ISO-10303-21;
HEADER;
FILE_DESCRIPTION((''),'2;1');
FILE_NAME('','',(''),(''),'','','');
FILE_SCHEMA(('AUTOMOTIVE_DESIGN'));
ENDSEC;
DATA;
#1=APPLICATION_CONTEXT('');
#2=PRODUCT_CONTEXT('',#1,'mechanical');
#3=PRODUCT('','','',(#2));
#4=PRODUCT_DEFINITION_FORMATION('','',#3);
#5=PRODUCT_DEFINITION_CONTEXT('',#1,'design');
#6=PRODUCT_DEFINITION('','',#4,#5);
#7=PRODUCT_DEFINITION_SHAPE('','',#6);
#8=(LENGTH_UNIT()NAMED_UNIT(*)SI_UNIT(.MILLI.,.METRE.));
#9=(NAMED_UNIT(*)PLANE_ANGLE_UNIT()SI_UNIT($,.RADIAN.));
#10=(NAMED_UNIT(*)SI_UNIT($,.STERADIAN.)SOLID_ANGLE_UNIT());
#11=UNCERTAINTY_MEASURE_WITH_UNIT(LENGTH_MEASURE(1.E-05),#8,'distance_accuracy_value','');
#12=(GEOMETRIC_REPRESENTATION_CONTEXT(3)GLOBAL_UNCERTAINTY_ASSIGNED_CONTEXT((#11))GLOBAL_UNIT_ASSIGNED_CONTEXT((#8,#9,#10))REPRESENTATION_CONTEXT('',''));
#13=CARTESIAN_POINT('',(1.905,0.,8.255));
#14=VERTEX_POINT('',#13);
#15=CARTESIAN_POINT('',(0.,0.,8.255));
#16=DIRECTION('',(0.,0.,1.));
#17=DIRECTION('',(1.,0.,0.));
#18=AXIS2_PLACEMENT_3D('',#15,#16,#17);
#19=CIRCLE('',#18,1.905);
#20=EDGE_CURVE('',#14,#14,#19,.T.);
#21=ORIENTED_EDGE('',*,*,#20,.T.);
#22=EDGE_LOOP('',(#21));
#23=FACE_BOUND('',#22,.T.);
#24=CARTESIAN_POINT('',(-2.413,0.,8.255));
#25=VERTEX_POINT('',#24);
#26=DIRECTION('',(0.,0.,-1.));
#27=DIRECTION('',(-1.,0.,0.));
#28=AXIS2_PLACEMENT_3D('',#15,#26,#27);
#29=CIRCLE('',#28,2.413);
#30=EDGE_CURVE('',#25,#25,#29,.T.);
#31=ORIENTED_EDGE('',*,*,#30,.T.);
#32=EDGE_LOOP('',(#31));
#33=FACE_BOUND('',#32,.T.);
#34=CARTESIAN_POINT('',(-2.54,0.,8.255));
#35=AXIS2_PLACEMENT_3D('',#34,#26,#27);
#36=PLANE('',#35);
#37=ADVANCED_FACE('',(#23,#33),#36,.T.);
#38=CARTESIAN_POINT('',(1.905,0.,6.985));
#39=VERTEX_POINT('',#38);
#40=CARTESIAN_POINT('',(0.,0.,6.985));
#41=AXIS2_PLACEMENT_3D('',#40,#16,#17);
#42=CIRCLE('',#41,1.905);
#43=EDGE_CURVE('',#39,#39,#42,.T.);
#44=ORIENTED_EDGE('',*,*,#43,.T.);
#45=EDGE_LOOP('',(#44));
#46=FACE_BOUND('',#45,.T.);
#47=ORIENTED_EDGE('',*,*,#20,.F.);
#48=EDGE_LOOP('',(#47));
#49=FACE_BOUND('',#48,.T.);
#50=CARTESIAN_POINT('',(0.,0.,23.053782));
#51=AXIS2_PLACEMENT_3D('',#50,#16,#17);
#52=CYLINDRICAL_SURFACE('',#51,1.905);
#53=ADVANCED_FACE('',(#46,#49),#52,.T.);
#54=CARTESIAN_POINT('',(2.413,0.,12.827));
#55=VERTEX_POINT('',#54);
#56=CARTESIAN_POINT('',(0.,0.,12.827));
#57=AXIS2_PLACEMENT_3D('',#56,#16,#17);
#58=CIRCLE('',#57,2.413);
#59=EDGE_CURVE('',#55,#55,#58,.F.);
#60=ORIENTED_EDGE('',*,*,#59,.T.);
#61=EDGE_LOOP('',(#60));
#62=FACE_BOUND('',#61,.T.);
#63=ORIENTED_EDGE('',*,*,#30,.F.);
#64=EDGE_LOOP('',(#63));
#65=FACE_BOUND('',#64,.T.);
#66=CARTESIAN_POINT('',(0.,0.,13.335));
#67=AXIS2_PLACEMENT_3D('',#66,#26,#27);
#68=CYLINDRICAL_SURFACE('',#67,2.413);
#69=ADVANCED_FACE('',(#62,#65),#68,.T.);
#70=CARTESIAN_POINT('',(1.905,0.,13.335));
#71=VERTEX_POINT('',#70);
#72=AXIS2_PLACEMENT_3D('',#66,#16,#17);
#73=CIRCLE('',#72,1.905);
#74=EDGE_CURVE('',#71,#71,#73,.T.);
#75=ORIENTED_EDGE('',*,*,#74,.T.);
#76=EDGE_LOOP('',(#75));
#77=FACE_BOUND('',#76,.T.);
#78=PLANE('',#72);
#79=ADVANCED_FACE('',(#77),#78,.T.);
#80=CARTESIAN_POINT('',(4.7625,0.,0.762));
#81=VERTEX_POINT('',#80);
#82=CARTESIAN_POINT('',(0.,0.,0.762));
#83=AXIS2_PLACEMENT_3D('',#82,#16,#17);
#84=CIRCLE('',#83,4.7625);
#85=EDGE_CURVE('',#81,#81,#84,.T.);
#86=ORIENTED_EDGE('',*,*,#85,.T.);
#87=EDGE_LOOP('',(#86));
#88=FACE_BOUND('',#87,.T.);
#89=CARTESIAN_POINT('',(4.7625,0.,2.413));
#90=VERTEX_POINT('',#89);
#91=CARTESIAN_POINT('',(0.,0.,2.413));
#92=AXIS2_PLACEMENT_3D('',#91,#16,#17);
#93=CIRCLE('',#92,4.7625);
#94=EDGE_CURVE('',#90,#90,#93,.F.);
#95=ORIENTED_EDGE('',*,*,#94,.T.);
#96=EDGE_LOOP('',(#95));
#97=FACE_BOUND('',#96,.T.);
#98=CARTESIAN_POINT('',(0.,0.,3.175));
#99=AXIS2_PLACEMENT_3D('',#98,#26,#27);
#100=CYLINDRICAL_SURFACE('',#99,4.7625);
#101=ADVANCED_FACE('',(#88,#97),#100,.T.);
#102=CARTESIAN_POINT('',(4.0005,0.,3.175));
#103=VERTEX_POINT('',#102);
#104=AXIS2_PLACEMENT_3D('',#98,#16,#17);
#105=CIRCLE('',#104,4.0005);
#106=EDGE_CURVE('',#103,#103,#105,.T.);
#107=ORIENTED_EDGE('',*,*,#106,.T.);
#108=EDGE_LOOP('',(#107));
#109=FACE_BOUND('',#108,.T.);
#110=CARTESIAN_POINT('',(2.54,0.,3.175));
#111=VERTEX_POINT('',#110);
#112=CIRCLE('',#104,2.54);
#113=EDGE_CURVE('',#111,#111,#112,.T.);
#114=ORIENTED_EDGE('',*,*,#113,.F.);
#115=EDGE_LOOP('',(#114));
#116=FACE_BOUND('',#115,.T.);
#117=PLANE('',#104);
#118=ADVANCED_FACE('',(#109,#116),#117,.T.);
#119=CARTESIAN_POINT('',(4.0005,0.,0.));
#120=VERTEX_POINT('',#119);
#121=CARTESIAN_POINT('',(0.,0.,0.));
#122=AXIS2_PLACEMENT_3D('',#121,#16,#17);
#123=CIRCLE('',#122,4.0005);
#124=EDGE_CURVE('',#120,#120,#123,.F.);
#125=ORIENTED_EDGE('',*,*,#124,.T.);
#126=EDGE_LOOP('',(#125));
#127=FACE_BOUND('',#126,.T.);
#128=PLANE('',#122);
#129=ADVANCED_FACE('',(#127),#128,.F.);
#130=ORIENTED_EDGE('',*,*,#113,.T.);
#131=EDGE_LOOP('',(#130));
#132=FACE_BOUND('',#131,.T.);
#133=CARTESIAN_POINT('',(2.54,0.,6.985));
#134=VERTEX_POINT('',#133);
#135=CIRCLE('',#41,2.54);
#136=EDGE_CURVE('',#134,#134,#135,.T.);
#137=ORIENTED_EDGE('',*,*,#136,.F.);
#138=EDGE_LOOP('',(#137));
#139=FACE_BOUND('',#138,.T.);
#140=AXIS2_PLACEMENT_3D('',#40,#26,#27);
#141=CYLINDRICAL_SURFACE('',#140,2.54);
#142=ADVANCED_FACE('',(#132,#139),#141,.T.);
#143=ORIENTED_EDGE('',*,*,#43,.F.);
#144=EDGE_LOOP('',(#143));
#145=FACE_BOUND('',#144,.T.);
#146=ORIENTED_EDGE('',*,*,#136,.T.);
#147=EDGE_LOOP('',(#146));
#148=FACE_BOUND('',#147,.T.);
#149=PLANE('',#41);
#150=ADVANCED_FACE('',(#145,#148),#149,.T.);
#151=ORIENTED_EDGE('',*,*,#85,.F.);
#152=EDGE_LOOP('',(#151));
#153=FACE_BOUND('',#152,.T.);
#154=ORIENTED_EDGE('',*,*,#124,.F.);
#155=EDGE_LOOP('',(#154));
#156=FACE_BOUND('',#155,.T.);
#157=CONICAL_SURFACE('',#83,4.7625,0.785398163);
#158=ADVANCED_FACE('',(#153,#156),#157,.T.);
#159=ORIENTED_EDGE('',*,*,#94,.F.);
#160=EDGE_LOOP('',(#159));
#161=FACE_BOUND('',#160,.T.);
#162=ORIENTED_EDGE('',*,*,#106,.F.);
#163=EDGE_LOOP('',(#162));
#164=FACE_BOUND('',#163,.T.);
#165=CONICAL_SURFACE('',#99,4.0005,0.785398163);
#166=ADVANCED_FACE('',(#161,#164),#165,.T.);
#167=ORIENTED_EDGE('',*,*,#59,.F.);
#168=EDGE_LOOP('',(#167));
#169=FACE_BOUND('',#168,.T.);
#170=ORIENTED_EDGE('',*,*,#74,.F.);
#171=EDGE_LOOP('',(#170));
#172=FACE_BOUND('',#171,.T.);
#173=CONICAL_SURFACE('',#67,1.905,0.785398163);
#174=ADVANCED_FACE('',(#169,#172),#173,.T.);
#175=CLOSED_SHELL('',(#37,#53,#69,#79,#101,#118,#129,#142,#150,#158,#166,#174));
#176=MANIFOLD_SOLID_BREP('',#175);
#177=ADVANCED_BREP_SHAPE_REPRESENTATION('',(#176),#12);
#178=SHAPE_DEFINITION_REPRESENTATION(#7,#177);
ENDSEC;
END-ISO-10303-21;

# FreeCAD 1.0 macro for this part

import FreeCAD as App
import Part
import Sketcher

V = App.Vector
Q = App.Units.Quantity


def edges_at(feature, points):
    """Names of the edges that pass closest to the given points."""
    edges = feature.Shape.Edges
    near = lambda p: min(range(len(edges)), key=lambda i: edges[i].distToShape(Part.Vertex(*p))[0])
    return sorted({f"Edge{near(p) + 1}" for p in points})


def add_polygon(sketch, points):
    """Adds a closed chain of lines whose ends are joined by coincident constraints."""
    first, n = sketch.GeometryCount, len(points)
    for a, b in zip(points, points[1:] + points[:1]):
        sketch.addGeometry(Part.LineSegment(App.Vector(*a, 0), App.Vector(*b, 0)), False)
    for i in range(n):
        sketch.addConstraint(Sketcher.Constraint("Coincident", first + i, 2, first + (i + 1) % n, 1))

doc = App.newDocument("Part")
body = doc.addObject("PartDesign::Body", "Body")

# Sketch on XY plane
sketch1 = doc.addObject("Sketcher::SketchObject", "Sketch")
body.addObject(sketch1)
sketch1.AttachmentSupport = (doc.XY_Plane, [""])
sketch1.MapMode = "FlatFace"
sketch1.addGeometry(Part.Circle(V(0, 0, 0), V(0, 0, 1), 4.7625), False)
sketch1.addConstraint([
    Sketcher.Constraint("Coincident", 0, 3, -1, 1),
    Sketcher.Constraint("Diameter", 0, Q("0.375 in")),
])
pad1 = doc.addObject("PartDesign::Pad", "Pad")
body.addObject(pad1)
pad1.Profile = sketch1
pad1.Length = Q("0.125 in")

# Sketch on XY plane
sketch2 = doc.addObject("Sketcher::SketchObject", "Sketch001")
body.addObject(sketch2)
sketch2.AttachmentSupport = (doc.XY_Plane, [""])
sketch2.MapMode = "FlatFace"
sketch2.AttachmentOffset = App.Placement(V(0, 0, 0.125 * 25.4), App.Rotation())
sketch2.addGeometry(Part.Circle(V(0, 0, 0), V(0, 0, 1), 2.54), False)
sketch2.addConstraint([
    Sketcher.Constraint("Coincident", 0, 3, -1, 1),
    Sketcher.Constraint("Diameter", 0, Q("0.2 in")),
])
pad2 = doc.addObject("PartDesign::Pad", "Pad001")
body.addObject(pad2)
pad2.Profile = sketch2
pad2.Length = Q("0.15 in")

# Sketch on XY plane
sketch3 = doc.addObject("Sketcher::SketchObject", "Sketch002")
body.addObject(sketch3)
sketch3.AttachmentSupport = (doc.XY_Plane, [""])
sketch3.MapMode = "FlatFace"
sketch3.AttachmentOffset = App.Placement(V(0, 0, 0.275 * 25.4), App.Rotation())
sketch3.addGeometry(Part.Circle(V(0, 0, 0), V(0, 0, 1), 2.413), False)
sketch3.addConstraint([
    Sketcher.Constraint("Coincident", 0, 3, -1, 1),
    Sketcher.Constraint("Diameter", 0, Q("0.19 in")),
])
pad3 = doc.addObject("PartDesign::Pad", "Pad002")
body.addObject(pad3)
pad3.Profile = sketch3
pad3.Length = Q("0.25 in")
doc.recompute()

chamfer = doc.addObject("PartDesign::Chamfer", "Chamfer")
body.addObject(chamfer)
chamfer.Base = (pad3, edges_at(pad3, [(-2.413, 0, 13.335)]))
chamfer.Size = Q("0.02 in")

# Sketch on XZ plane
sketch4 = doc.addObject("Sketcher::SketchObject", "Sketch003")
body.addObject(sketch4)
sketch4.AttachmentSupport = (doc.XZ_Plane, [""])
sketch4.MapMode = "FlatFace"
add_polygon(sketch4, [(-2.54, 6.985), (-2.54, 8.255), (-1.905, 8.255), (-1.905, 6.985)])  # lines 0-3
sketch4.addConstraint([
    Sketcher.Constraint("Vertical", 0),
    Sketcher.Constraint("Horizontal", 1),
    Sketcher.Constraint("Vertical", 2),
    Sketcher.Constraint("Horizontal", 3),
    Sketcher.Constraint("DistanceY", 0, 1, 0, 2, Q("0.05 in")),
    Sketcher.Constraint("DistanceX", 0, 2, -1, 1, Q("0.1 in")),
    Sketcher.Constraint("DistanceX", 1, 1, 1, 2, Q("0.025 in")),
    Sketcher.Constraint("DistanceY", -1, 1, 0, 2, Q("0.325 in")),
])
groove = doc.addObject("PartDesign::Groove", "Groove")
body.addObject(groove)
groove.Profile = sketch4
groove.ReferenceAxis = (sketch4, ["V_Axis"])
groove.Angle = 360
doc.recompute()

chamfer2 = doc.addObject("PartDesign::Chamfer", "Chamfer001")
body.addObject(chamfer2)
chamfer2.Base = (groove, edges_at(groove, [(-4.763, 0, 0), (-4.763, 0, 3.175)]))
chamfer2.Size = Q("0.03 in")

doc.recompute()
